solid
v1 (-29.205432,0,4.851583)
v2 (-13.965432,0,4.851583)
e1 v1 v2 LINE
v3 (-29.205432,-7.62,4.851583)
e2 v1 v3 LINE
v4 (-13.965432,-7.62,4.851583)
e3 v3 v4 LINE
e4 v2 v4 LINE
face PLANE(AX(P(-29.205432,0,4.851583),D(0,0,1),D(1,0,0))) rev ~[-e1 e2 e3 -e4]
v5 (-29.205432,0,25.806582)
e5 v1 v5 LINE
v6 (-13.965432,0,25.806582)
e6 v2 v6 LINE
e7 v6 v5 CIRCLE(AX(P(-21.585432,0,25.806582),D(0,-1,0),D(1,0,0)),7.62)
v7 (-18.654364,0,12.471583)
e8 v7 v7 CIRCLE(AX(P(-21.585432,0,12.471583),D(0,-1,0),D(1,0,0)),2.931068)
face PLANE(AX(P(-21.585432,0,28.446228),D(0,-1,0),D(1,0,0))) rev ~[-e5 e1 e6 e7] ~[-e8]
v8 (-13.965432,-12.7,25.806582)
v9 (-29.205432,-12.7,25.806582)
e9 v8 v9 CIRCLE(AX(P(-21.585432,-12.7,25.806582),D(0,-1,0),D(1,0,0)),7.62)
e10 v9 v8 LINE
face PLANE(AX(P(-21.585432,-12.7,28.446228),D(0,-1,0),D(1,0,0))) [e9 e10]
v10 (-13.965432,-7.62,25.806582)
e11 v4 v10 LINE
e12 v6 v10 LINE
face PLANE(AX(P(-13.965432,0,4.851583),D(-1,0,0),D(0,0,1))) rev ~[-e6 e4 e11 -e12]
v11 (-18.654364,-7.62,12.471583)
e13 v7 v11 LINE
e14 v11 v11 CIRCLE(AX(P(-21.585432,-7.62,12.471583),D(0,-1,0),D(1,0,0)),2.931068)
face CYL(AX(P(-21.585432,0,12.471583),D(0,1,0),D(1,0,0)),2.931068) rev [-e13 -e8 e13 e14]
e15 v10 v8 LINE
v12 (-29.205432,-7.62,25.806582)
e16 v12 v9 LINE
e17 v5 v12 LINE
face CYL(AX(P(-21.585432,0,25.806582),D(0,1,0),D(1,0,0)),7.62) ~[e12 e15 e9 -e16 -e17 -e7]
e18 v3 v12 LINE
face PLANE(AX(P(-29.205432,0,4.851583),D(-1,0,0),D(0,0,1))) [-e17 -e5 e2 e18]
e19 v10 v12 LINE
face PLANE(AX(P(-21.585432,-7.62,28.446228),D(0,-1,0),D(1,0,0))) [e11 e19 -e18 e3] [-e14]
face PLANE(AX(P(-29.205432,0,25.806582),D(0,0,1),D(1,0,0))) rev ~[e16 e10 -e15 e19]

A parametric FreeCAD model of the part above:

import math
import FreeCAD as App
import Part
import Sketcher
from FreeCAD import Vector
Q = App.Units.Quantity

doc = App.newDocument("Part")
body = doc.addObject("PartDesign::Body", "Body")

sketch1 = body.newObject("Sketcher::SketchObject", "Sketch")
sketch1.AttachmentSupport = (doc.getObject("XZ_Plane"), [""])
sketch1.MapMode = "FlatFace"
sketch1.addGeometry([
    Part.ArcOfCircle(Part.Circle(Vector(-21.6, 25.8, 0), Vector(0, 0, 1), 7.6), math.radians(0), math.radians(180)),
    Part.LineSegment(Vector(-29.2, 25.8, 0), Vector(-29.2, 4.9, 0)),
    Part.LineSegment(Vector(-29.2, 4.9, 0), Vector(-14, 4.9, 0)),
    Part.LineSegment(Vector(-14, 4.9, 0), Vector(-14, 25.8, 0)),
    Part.Circle(Vector(-21.6, 12.5, 0), Vector(0, 0, 1), 2.9),
], False)
sketch1.addConstraint([
    Sketcher.Constraint("Tangent", 0, 2, 1, 1),
    Sketcher.Constraint("Coincident", 1, 2, 2, 1),
    Sketcher.Constraint("Coincident", 2, 2, 3, 1),
    Sketcher.Constraint("Tangent", 3, 2, 0, 1),
    Sketcher.Constraint("Vertical", 1),
    Sketcher.Constraint("Horizontal", 2),
    Sketcher.Constraint("Vertical", 3),
    Sketcher.Constraint("Vertical", 0, 3, 4, 3),
    Sketcher.Constraint("Radius", 0, Q("0.3 in")),
    Sketcher.Constraint("DistanceY", 1, 2, 4, 3, Q("0.3 in")),
    Sketcher.Constraint("DistanceY", 1, 2, 1, 1, Q("0.825 in")),
    Sketcher.Constraint("Diameter", 4, Q("5.862136 mm")),
    Sketcher.Constraint("DistanceX", 0, 3, -1, 1, Q("21.585432 mm")),
    Sketcher.Constraint("DistanceY", -1, 1, 0, 3, Q("25.806582 mm")),
])
pad1 = body.newObject("PartDesign::Pad", "Pad")
pad1.Profile = sketch1
pad1.Length = Q("0.3 in")

sketch2 = body.newObject("Sketcher::SketchObject", "Sketch001")
sketch2.AttachmentSupport = (doc.getObject("XZ_Plane"), [""])
sketch2.MapMode = "FlatFace"
sketch2.addGeometry([
    Part.ArcOfCircle(Part.Circle(Vector(-22, 26, 0), Vector(0, 0, 1), 8), math.radians(0), math.radians(180)),
    Part.LineSegment(Vector(-29, 26, 0), Vector(-14, 26, 0)),
], False)
sketch2.addConstraint([
    Sketcher.Constraint("Coincident", 0, 1, 1, 2),
    Sketcher.Constraint("Coincident", 1, 1, 0, 2),
    Sketcher.Constraint("Horizontal", 1),
    Sketcher.Constraint("Radius", 0, Q("0.3 in")),
    Sketcher.Constraint("DistanceX", 0, 3, -1, 1, Q("21.585432 mm")),
    Sketcher.Constraint("DistanceY", -1, 1, 0, 3, Q("25.806582 mm")),
    Sketcher.Constraint("DistanceY", -1, 1, 0, 1, Q("25.806582 mm")),
])
pad2 = body.newObject("PartDesign::Pad", "Pad001")
pad2.Profile = sketch2
pad2.Length = Q("0.5 in")

doc.recompute()
